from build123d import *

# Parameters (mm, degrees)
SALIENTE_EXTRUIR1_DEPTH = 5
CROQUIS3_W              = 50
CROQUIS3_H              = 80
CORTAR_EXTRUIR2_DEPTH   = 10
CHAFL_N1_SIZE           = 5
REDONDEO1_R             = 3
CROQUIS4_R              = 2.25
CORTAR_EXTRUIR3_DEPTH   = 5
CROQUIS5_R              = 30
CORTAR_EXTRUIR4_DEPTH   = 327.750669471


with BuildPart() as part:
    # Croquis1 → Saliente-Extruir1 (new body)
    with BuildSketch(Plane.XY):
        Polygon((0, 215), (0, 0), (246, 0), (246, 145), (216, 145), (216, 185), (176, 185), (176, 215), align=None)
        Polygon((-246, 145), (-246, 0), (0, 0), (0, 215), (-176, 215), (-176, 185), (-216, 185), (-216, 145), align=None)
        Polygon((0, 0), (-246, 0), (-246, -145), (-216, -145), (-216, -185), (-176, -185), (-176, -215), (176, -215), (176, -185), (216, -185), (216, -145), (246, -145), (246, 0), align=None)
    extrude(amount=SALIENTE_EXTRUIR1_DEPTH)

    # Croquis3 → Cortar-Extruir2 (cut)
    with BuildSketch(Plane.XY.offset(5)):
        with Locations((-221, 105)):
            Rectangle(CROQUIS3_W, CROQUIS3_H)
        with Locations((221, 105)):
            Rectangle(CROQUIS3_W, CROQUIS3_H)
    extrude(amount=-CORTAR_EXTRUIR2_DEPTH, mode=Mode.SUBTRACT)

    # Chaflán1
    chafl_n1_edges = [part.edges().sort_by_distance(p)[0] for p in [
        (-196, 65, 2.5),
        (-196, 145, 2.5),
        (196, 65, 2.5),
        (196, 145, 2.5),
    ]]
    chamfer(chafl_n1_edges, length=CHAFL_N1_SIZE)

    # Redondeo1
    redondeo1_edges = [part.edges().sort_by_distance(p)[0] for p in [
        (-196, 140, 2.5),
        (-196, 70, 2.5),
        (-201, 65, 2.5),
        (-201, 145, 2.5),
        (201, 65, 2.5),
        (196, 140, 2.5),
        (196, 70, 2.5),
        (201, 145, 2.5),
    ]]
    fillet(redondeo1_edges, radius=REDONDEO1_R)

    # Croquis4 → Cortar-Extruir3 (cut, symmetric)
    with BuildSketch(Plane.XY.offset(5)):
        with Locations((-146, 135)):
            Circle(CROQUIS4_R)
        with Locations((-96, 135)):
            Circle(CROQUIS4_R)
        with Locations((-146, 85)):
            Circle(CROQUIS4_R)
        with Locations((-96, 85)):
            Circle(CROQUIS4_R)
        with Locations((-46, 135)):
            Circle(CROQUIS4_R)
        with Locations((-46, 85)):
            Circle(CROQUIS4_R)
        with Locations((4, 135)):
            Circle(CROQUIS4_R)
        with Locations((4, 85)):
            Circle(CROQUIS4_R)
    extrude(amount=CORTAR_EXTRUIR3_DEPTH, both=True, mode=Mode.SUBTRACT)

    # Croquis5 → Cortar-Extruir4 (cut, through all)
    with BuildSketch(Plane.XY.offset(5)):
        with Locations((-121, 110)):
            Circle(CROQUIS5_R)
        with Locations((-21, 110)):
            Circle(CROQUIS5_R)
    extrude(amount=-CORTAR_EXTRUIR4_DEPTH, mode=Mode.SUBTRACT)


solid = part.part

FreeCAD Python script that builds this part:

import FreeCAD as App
import Part
import Sketcher

V = App.Vector
Q = App.Units.Quantity


def edges_at(feature, points):
    """Names of the edges that pass closest to the given points."""
    edges = feature.Shape.Edges
    near = lambda p: min(range(len(edges)), key=lambda i: edges[i].distToShape(Part.Vertex(*p))[0])
    return sorted({f"Edge{near(p) + 1}" for p in points})


def add_polygon(sketch, points):
    """Adds a closed chain of lines whose ends are joined by coincident constraints."""
    first, n = sketch.GeometryCount, len(points)
    for a, b in zip(points, points[1:] + points[:1]):
        sketch.addGeometry(Part.LineSegment(App.Vector(*a, 0), App.Vector(*b, 0)), False)
    for i in range(n):
        sketch.addConstraint(Sketcher.Constraint("Coincident", first + i, 2, first + (i + 1) % n, 1))

doc = App.newDocument("Part")
body = doc.addObject("PartDesign::Body", "Body")

# Sketch on XY plane
sketch1 = body.newObject("Sketcher::SketchObject", "Sketch")
sketch1.AttachmentSupport = (doc.getObject("XY_Plane"), [""])
sketch1.MapMode = "FlatFace"
add_polygon(sketch1, [(246, 145), (216, 145), (216, 185), (176, 185), (176, 215), (-176, 215), (-176, 185), (-216, 185), (-216, 145), (-246, 145), (-246, -145), (-216, -145), (-216, -185), (-176, -185), (-176, -215), (176, -215), (176, -185), (216, -185), (216, -145), (246, -145)])  # lines 0-19
sketch1.addConstraint([
    Sketcher.Constraint("Horizontal", 0),
    Sketcher.Constraint("Vertical", 1),
    Sketcher.Constraint("Horizontal", 2),
    Sketcher.Constraint("Vertical", 3),
    Sketcher.Constraint("Horizontal", 4),
    Sketcher.Constraint("Vertical", 5),
    Sketcher.Constraint("Horizontal", 6),
    Sketcher.Constraint("Vertical", 7),
    Sketcher.Constraint("Horizontal", 8),
    Sketcher.Constraint("Vertical", 9),
    Sketcher.Constraint("Horizontal", 10),
    Sketcher.Constraint("Vertical", 11),
    Sketcher.Constraint("Horizontal", 12),
    Sketcher.Constraint("Vertical", 13),
    Sketcher.Constraint("Horizontal", 14),
    Sketcher.Constraint("Vertical", 15),
    Sketcher.Constraint("Horizontal", 16),
    Sketcher.Constraint("Vertical", 17),
    Sketcher.Constraint("Horizontal", 18),
    Sketcher.Constraint("Vertical", 19),
    Sketcher.Constraint("Symmetric", 0, 2, 10, 2, -1, 1),
    Sketcher.Constraint("Symmetric", 2, 2, 12, 2, -1, 1),
    Sketcher.Constraint("Symmetric", 4, 2, 14, 2, -1, 1),
    Sketcher.Constraint("Symmetric", 6, 2, 16, 2, -1, 1),
    Sketcher.Constraint("Symmetric", 8, 2, 18, 2, -1, 1),
    Sketcher.Constraint("Symmetric", 2, 2, 5, 2, -2),
    Sketcher.Constraint("Symmetric", 0, 2, 7, 2, -2),
    Sketcher.Constraint("Equal", 16, 1),
    Sketcher.Constraint("Equal", 18, 3),
    Sketcher.Constraint("DistanceX", 0, 2, 0, 1, Q("30 mm")),
    Sketcher.Constraint("DistanceX", 2, 2, 2, 1, Q("40 mm")),
    Sketcher.Constraint("DistanceX", 4, 2, 4, 1, Q("352 mm")),
    Sketcher.Constraint("DistanceY", 9, 2, 9, 1, Q("290 mm")),
])
pad1 = body.newObject("PartDesign::Pad", "Pad")
pad1.Profile = sketch1
pad1.Length = 5

# Sketch on XY plane
sketch2 = body.newObject("Sketcher::SketchObject", "Sketch001")
sketch2.AttachmentSupport = (doc.getObject("XY_Plane"), [""])
sketch2.MapMode = "FlatFace"
sketch2.AttachmentOffset = App.Placement(V(0, 0, 5), App.Rotation())
add_polygon(sketch2, [(-246, 145), (-246, 65), (-196, 65), (-196, 145)])  # lines 0-3
add_polygon(sketch2, [(196, 145), (196, 65), (246, 65), (246, 145)])  # lines 4-7
sketch2.addConstraint([
    Sketcher.Constraint("Vertical", 0),
    Sketcher.Constraint("Horizontal", 1),
    Sketcher.Constraint("Vertical", 2),
    Sketcher.Constraint("Horizontal", 3),
    Sketcher.Constraint("Vertical", 4),
    Sketcher.Constraint("Horizontal", 5),
    Sketcher.Constraint("Vertical", 6),
    Sketcher.Constraint("Horizontal", 7),
    Sketcher.Constraint("Symmetric", 1, 2, 4, 2, -2),
    Sketcher.Constraint("Symmetric", 3, 2, 6, 2, -2),
    Sketcher.Constraint("DistanceX", 1, 1, 1, 2, Q("50 mm")),
    Sketcher.Constraint("DistanceY", 0, 2, 0, 1, Q("80 mm")),
    Sketcher.Constraint("DistanceX", 0, 2, -1, 1, Q("246 mm")),
    Sketcher.Constraint("DistanceY", -1, 1, 0, 2, Q("65 mm")),
])
pocket1 = body.newObject("PartDesign::Pocket", "Pocket")
pocket1.Profile = sketch2
pocket1.Length = 10
doc.recompute()

chamfer = body.newObject("PartDesign::Chamfer", "Chamfer")
chamfer.Base = (pocket1, edges_at(pocket1, [
    (-196, 65, 2.5),
    (-196, 145, 2.5),
    (196, 65, 2.5),
    (196, 145, 2.5),
]))
chamfer.Size = 5
doc.recompute()

fillet = body.newObject("PartDesign::Fillet", "Fillet")
fillet.Base = (chamfer, edges_at(chamfer, [
    (-196, 140, 2.5),
    (-196, 70, 2.5),
    (-201, 65, 2.5),
    (-201, 145, 2.5),
    (201, 65, 2.5),
    (196, 140, 2.5),
    (196, 70, 2.5),
    (201, 145, 2.5),
]))
fillet.Radius = 3

# Sketch on XY plane
sketch3 = body.newObject("Sketcher::SketchObject", "Sketch002")
sketch3.AttachmentSupport = (doc.getObject("XY_Plane"), [""])
sketch3.MapMode = "FlatFace"
sketch3.AttachmentOffset = App.Placement(V(0, 0, 5), App.Rotation())
sketch3.addGeometry([
    Part.Circle(V(-146, 135, 0), V(0, 0, 1), 2.2),  # 0
    Part.Circle(V(-96, 135, 0), V(0, 0, 1), 2.2),  # 1
    Part.Circle(V(-146, 85, 0), V(0, 0, 1), 2.2),  # 2
    Part.Circle(V(-96, 85, 0), V(0, 0, 1), 2.2),  # 3
    Part.Circle(V(-46, 135, 0), V(0, 0, 1), 2.2),  # 4
    Part.Circle(V(-46, 85, 0), V(0, 0, 1), 2.2),  # 5
    Part.Circle(V(4, 135, 0), V(0, 0, 1), 2.2),  # 6
    Part.Circle(V(4, 85, 0), V(0, 0, 1), 2.2),  # 7
], False)
sketch3.addConstraint([
    Sketcher.Constraint("Equal", 0, 1),
    Sketcher.Constraint("Equal", 1, 2),
    Sketcher.Constraint("Equal", 2, 3),
    Sketcher.Constraint("Equal", 3, 4),
    Sketcher.Constraint("Equal", 4, 5),
    Sketcher.Constraint("Equal", 5, 6),
    Sketcher.Constraint("Equal", 6, 7),
    Sketcher.Constraint("Horizontal", 0, 3, 1, 3),
    Sketcher.Constraint("Horizontal", 2, 3, 3, 3),
    Sketcher.Constraint("Horizontal", 1, 3, 4, 3),
    Sketcher.Constraint("Horizontal", 3, 3, 5, 3),
    Sketcher.Constraint("Horizontal", 4, 3, 6, 3),
    Sketcher.Constraint("Horizontal", 5, 3, 7, 3),
    Sketcher.Constraint("Vertical", 0, 3, 2, 3),
    Sketcher.Constraint("Vertical", 1, 3, 3, 3),
    Sketcher.Constraint("Vertical", 4, 3, 5, 3),
    Sketcher.Constraint("Vertical", 6, 3, 7, 3),
    Sketcher.Constraint("Diameter", 0, Q("4.5 mm")),
    Sketcher.Constraint("DistanceX", 0, 3, -1, 1, Q("146 mm")),
    Sketcher.Constraint("DistanceY", -1, 1, 0, 3, Q("135 mm")),
    Sketcher.Constraint("DistanceX", 1, 3, -1, 1, Q("96 mm")),
    Sketcher.Constraint("DistanceY", -1, 1, 2, 3, Q("85 mm")),
    Sketcher.Constraint("DistanceX", 4, 3, -1, 1, Q("46 mm")),
    Sketcher.Constraint("DistanceX", -1, 1, 6, 3, Q("4 mm")),
])
pocket2 = body.newObject("PartDesign::Pocket", "Pocket001")
pocket2.Profile = sketch3
pocket2.Length = 10
pocket2.Midplane = True

# Sketch on XY plane
sketch4 = body.newObject("Sketcher::SketchObject", "Sketch003")
sketch4.AttachmentSupport = (doc.getObject("XY_Plane"), [""])
sketch4.MapMode = "FlatFace"
sketch4.AttachmentOffset = App.Placement(V(0, 0, 5), App.Rotation())
sketch4.addGeometry([
    Part.Circle(V(-121, 110, 0), V(0, 0, 1), 30),
    Part.Circle(V(-21, 110, 0), V(0, 0, 1), 30),
], False)
sketch4.addConstraint([
    Sketcher.Constraint("Equal", 0, 1),
    Sketcher.Constraint("Horizontal", 0, 3, 1, 3),
    Sketcher.Constraint("Diameter", 0, Q("60 mm")),
    Sketcher.Constraint("DistanceX", 0, 3, -1, 1, Q("121 mm")),
    Sketcher.Constraint("DistanceY", -1, 1, 0, 3, Q("110 mm")),
    Sketcher.Constraint("DistanceX", 1, 3, -1, 1, Q("21 mm")),
])
pocket3 = body.newObject("PartDesign::Pocket", "Pocket002")
pocket3.Profile = sketch4
pocket3.Type = "ThroughAll"

doc.recompute()
